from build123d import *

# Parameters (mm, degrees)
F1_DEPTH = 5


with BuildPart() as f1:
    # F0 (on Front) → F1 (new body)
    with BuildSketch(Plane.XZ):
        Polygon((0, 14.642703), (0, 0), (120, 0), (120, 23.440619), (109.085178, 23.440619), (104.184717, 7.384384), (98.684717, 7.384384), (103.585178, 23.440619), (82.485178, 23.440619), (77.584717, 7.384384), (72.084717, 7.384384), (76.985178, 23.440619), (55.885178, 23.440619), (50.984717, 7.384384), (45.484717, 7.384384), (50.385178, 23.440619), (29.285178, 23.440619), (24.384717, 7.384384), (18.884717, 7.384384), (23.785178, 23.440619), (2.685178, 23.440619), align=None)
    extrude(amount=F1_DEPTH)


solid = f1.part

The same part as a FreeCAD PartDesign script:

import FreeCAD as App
import Part
import Sketcher


def add_polygon(sketch, points):
    """Adds a closed chain of lines whose ends are joined by coincident constraints."""
    first, n = sketch.GeometryCount, len(points)
    for a, b in zip(points, points[1:] + points[:1]):
        sketch.addGeometry(Part.LineSegment(App.Vector(*a, 0), App.Vector(*b, 0)), False)
    for i in range(n):
        sketch.addConstraint(Sketcher.Constraint("Coincident", first + i, 2, first + (i + 1) % n, 1))

doc = App.newDocument("Part")
body = doc.addObject("PartDesign::Body", "Body")

sketch1 = doc.addObject("Sketcher::SketchObject", "Sketch")
body.addObject(sketch1)
sketch1.AttachmentSupport = (doc.XZ_Plane, [""])
sketch1.MapMode = "FlatFace"
add_polygon(sketch1, [(0, 15), (0, 0), (120, 0), (120, 23), (109, 23), (104, 7), (99, 7), (104, 23), (82, 23), (78, 7), (72, 7), (77, 23), (56, 23), (51, 7), (45, 7), (50, 23), (29, 23), (24, 7), (19, 7), (24, 23), (3, 23)])
sketch1.addConstraint(Sketcher.Constraint("Vertical", 0))
sketch1.addConstraint(Sketcher.Constraint("Horizontal", 1))
sketch1.addConstraint(Sketcher.Constraint("Vertical", 2))
sketch1.addConstraint(Sketcher.Constraint("Horizontal", 3))
sketch1.addConstraint(Sketcher.Constraint("Horizontal", 5))
sketch1.addConstraint(Sketcher.Constraint("Horizontal", 7))
sketch1.addConstraint(Sketcher.Constraint("Horizontal", 9))
sketch1.addConstraint(Sketcher.Constraint("Horizontal", 11))
sketch1.addConstraint(Sketcher.Constraint("Horizontal", 13))
sketch1.addConstraint(Sketcher.Constraint("Horizontal", 15))
sketch1.addConstraint(Sketcher.Constraint("Horizontal", 17))
sketch1.addConstraint(Sketcher.Constraint("Horizontal", 19))
sketch1.addConstraint(Sketcher.Constraint("Coincident", 0, 2, -1, 1))
sketch1.addConstraint(Sketcher.Constraint("Parallel", 4, 6))
sketch1.addConstraint(Sketcher.Constraint("Parallel", 6, 8))
sketch1.addConstraint(Sketcher.Constraint("Parallel", 8, 10))
sketch1.addConstraint(Sketcher.Constraint("Parallel", 10, 12))
sketch1.addConstraint(Sketcher.Constraint("Parallel", 12, 14))
sketch1.addConstraint(Sketcher.Constraint("Parallel", 14, 16))
sketch1.addConstraint(Sketcher.Constraint("Parallel", 16, 18))
sketch1.addConstraint(Sketcher.Constraint("Parallel", 18, 20))
sketch1.addConstraint(Sketcher.Constraint("Horizontal", 3, 2, 6, 2))
sketch1.addConstraint(Sketcher.Constraint("Horizontal", 5, 2, 8, 2))
sketch1.addConstraint(Sketcher.Constraint("Horizontal", 7, 2, 10, 2))
sketch1.addConstraint(Sketcher.Constraint("Horizontal", 9, 2, 12, 2))
sketch1.addConstraint(Sketcher.Constraint("Horizontal", 11, 2, 14, 2))
sketch1.addConstraint(Sketcher.Constraint("Horizontal", 13, 2, 16, 2))
sketch1.addConstraint(Sketcher.Constraint("Horizontal", 15, 2, 18, 2))
sketch1.addConstraint(Sketcher.Constraint("Equal", 5, 9))
sketch1.addConstraint(Sketcher.Constraint("Equal", 7, 11))
sketch1.addConstraint(Sketcher.Constraint("Equal", 9, 13))
sketch1.addConstraint(Sketcher.Constraint("Equal", 11, 15))
sketch1.addConstraint(Sketcher.Constraint("Equal", 13, 17))
sketch1.addConstraint(Sketcher.Constraint("Equal", 15, 19))
sketch1.addConstraint(Sketcher.Constraint("DistanceX", 1, 1, 1, 2, 120.0))
sketch1.addConstraint(Sketcher.Constraint("DistanceX", 5, 2, 5, 1, 5.5))
sketch1.addConstraint(Sketcher.Constraint("DistanceX", 7, 2, 7, 1, 21.1))
sketch1.addConstraint(Sketcher.Constraint("DistanceY", 2, 1, 2, 2, 23.440619))
sketch1.addConstraint(Sketcher.Constraint("Distance", 4, 16.787412))
sketch1.addConstraint(Sketcher.Constraint("Distance", 20, 9.19856))
sketch1.addConstraint(Sketcher.Constraint("DistanceX", 3, 2, 3, 1, 10.914822))
pad1 = doc.addObject("PartDesign::Pad", "Pad")
body.addObject(pad1)
pad1.Profile = sketch1
pad1.Length = 5

doc.recompute()
